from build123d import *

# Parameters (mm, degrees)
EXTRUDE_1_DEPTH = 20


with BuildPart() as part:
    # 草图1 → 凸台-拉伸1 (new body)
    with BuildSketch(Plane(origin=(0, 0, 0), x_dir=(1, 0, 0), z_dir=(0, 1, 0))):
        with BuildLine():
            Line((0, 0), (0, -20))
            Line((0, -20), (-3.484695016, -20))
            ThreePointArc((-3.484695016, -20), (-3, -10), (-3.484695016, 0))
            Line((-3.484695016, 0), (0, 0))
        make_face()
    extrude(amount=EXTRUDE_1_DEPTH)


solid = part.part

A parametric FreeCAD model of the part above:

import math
import FreeCAD as App
import Part
import Sketcher
from FreeCAD import Vector
Q = App.Units.Quantity

doc = App.newDocument("Part")
body = doc.addObject("PartDesign::Body", "Body")

sketch1 = body.newObject("Sketcher::SketchObject", "Sketch")
sketch1.AttachmentSupport = (doc.getObject("XZ_Plane"), [""])
sketch1.MapMode = "FlatFace"
sketch1.addGeometry([
    Part.LineSegment(Vector(0, 20, 0), Vector(0, 0, 0)),
    Part.LineSegment(Vector(0, 0, 0), Vector(-3.5, 0, 0)),
    Part.ArcOfCircle(Part.Circle(Vector(-106.4, 10, 0), Vector(0, 0, 1), 103.4), math.radians(-5.55), math.radians(5.55)),
    Part.LineSegment(Vector(-3.5, 20, 0), Vector(0, 20, 0)),
], False)
sketch1.addConstraint([
    Sketcher.Constraint("Coincident", 0, 2, 1, 1),
    Sketcher.Constraint("Coincident", 1, 2, 2, 1),
    Sketcher.Constraint("Coincident", 2, 2, 3, 1),
    Sketcher.Constraint("Coincident", 3, 2, 0, 1),
    Sketcher.Constraint("Vertical", 0),
    Sketcher.Constraint("Horizontal", 1),
    Sketcher.Constraint("Horizontal", 3),
    Sketcher.Constraint("Coincident", 0, 2, -1, 1),
    Sketcher.Constraint("Vertical", 1, 2, 2, 2),
    Sketcher.Constraint("Radius", 2, Q("103.4 mm")),
    Sketcher.Constraint("DistanceY", 0, 2, 0, 1, Q("20 mm")),
    Sketcher.Constraint("DistanceX", 2, 3, -1, 1, Q("106.4 mm")),
])
pad1 = body.newObject("PartDesign::Pad", "Pad")
pad1.Profile = sketch1
pad1.Length = 20
pad1.Reversed = True

doc.recompute()
